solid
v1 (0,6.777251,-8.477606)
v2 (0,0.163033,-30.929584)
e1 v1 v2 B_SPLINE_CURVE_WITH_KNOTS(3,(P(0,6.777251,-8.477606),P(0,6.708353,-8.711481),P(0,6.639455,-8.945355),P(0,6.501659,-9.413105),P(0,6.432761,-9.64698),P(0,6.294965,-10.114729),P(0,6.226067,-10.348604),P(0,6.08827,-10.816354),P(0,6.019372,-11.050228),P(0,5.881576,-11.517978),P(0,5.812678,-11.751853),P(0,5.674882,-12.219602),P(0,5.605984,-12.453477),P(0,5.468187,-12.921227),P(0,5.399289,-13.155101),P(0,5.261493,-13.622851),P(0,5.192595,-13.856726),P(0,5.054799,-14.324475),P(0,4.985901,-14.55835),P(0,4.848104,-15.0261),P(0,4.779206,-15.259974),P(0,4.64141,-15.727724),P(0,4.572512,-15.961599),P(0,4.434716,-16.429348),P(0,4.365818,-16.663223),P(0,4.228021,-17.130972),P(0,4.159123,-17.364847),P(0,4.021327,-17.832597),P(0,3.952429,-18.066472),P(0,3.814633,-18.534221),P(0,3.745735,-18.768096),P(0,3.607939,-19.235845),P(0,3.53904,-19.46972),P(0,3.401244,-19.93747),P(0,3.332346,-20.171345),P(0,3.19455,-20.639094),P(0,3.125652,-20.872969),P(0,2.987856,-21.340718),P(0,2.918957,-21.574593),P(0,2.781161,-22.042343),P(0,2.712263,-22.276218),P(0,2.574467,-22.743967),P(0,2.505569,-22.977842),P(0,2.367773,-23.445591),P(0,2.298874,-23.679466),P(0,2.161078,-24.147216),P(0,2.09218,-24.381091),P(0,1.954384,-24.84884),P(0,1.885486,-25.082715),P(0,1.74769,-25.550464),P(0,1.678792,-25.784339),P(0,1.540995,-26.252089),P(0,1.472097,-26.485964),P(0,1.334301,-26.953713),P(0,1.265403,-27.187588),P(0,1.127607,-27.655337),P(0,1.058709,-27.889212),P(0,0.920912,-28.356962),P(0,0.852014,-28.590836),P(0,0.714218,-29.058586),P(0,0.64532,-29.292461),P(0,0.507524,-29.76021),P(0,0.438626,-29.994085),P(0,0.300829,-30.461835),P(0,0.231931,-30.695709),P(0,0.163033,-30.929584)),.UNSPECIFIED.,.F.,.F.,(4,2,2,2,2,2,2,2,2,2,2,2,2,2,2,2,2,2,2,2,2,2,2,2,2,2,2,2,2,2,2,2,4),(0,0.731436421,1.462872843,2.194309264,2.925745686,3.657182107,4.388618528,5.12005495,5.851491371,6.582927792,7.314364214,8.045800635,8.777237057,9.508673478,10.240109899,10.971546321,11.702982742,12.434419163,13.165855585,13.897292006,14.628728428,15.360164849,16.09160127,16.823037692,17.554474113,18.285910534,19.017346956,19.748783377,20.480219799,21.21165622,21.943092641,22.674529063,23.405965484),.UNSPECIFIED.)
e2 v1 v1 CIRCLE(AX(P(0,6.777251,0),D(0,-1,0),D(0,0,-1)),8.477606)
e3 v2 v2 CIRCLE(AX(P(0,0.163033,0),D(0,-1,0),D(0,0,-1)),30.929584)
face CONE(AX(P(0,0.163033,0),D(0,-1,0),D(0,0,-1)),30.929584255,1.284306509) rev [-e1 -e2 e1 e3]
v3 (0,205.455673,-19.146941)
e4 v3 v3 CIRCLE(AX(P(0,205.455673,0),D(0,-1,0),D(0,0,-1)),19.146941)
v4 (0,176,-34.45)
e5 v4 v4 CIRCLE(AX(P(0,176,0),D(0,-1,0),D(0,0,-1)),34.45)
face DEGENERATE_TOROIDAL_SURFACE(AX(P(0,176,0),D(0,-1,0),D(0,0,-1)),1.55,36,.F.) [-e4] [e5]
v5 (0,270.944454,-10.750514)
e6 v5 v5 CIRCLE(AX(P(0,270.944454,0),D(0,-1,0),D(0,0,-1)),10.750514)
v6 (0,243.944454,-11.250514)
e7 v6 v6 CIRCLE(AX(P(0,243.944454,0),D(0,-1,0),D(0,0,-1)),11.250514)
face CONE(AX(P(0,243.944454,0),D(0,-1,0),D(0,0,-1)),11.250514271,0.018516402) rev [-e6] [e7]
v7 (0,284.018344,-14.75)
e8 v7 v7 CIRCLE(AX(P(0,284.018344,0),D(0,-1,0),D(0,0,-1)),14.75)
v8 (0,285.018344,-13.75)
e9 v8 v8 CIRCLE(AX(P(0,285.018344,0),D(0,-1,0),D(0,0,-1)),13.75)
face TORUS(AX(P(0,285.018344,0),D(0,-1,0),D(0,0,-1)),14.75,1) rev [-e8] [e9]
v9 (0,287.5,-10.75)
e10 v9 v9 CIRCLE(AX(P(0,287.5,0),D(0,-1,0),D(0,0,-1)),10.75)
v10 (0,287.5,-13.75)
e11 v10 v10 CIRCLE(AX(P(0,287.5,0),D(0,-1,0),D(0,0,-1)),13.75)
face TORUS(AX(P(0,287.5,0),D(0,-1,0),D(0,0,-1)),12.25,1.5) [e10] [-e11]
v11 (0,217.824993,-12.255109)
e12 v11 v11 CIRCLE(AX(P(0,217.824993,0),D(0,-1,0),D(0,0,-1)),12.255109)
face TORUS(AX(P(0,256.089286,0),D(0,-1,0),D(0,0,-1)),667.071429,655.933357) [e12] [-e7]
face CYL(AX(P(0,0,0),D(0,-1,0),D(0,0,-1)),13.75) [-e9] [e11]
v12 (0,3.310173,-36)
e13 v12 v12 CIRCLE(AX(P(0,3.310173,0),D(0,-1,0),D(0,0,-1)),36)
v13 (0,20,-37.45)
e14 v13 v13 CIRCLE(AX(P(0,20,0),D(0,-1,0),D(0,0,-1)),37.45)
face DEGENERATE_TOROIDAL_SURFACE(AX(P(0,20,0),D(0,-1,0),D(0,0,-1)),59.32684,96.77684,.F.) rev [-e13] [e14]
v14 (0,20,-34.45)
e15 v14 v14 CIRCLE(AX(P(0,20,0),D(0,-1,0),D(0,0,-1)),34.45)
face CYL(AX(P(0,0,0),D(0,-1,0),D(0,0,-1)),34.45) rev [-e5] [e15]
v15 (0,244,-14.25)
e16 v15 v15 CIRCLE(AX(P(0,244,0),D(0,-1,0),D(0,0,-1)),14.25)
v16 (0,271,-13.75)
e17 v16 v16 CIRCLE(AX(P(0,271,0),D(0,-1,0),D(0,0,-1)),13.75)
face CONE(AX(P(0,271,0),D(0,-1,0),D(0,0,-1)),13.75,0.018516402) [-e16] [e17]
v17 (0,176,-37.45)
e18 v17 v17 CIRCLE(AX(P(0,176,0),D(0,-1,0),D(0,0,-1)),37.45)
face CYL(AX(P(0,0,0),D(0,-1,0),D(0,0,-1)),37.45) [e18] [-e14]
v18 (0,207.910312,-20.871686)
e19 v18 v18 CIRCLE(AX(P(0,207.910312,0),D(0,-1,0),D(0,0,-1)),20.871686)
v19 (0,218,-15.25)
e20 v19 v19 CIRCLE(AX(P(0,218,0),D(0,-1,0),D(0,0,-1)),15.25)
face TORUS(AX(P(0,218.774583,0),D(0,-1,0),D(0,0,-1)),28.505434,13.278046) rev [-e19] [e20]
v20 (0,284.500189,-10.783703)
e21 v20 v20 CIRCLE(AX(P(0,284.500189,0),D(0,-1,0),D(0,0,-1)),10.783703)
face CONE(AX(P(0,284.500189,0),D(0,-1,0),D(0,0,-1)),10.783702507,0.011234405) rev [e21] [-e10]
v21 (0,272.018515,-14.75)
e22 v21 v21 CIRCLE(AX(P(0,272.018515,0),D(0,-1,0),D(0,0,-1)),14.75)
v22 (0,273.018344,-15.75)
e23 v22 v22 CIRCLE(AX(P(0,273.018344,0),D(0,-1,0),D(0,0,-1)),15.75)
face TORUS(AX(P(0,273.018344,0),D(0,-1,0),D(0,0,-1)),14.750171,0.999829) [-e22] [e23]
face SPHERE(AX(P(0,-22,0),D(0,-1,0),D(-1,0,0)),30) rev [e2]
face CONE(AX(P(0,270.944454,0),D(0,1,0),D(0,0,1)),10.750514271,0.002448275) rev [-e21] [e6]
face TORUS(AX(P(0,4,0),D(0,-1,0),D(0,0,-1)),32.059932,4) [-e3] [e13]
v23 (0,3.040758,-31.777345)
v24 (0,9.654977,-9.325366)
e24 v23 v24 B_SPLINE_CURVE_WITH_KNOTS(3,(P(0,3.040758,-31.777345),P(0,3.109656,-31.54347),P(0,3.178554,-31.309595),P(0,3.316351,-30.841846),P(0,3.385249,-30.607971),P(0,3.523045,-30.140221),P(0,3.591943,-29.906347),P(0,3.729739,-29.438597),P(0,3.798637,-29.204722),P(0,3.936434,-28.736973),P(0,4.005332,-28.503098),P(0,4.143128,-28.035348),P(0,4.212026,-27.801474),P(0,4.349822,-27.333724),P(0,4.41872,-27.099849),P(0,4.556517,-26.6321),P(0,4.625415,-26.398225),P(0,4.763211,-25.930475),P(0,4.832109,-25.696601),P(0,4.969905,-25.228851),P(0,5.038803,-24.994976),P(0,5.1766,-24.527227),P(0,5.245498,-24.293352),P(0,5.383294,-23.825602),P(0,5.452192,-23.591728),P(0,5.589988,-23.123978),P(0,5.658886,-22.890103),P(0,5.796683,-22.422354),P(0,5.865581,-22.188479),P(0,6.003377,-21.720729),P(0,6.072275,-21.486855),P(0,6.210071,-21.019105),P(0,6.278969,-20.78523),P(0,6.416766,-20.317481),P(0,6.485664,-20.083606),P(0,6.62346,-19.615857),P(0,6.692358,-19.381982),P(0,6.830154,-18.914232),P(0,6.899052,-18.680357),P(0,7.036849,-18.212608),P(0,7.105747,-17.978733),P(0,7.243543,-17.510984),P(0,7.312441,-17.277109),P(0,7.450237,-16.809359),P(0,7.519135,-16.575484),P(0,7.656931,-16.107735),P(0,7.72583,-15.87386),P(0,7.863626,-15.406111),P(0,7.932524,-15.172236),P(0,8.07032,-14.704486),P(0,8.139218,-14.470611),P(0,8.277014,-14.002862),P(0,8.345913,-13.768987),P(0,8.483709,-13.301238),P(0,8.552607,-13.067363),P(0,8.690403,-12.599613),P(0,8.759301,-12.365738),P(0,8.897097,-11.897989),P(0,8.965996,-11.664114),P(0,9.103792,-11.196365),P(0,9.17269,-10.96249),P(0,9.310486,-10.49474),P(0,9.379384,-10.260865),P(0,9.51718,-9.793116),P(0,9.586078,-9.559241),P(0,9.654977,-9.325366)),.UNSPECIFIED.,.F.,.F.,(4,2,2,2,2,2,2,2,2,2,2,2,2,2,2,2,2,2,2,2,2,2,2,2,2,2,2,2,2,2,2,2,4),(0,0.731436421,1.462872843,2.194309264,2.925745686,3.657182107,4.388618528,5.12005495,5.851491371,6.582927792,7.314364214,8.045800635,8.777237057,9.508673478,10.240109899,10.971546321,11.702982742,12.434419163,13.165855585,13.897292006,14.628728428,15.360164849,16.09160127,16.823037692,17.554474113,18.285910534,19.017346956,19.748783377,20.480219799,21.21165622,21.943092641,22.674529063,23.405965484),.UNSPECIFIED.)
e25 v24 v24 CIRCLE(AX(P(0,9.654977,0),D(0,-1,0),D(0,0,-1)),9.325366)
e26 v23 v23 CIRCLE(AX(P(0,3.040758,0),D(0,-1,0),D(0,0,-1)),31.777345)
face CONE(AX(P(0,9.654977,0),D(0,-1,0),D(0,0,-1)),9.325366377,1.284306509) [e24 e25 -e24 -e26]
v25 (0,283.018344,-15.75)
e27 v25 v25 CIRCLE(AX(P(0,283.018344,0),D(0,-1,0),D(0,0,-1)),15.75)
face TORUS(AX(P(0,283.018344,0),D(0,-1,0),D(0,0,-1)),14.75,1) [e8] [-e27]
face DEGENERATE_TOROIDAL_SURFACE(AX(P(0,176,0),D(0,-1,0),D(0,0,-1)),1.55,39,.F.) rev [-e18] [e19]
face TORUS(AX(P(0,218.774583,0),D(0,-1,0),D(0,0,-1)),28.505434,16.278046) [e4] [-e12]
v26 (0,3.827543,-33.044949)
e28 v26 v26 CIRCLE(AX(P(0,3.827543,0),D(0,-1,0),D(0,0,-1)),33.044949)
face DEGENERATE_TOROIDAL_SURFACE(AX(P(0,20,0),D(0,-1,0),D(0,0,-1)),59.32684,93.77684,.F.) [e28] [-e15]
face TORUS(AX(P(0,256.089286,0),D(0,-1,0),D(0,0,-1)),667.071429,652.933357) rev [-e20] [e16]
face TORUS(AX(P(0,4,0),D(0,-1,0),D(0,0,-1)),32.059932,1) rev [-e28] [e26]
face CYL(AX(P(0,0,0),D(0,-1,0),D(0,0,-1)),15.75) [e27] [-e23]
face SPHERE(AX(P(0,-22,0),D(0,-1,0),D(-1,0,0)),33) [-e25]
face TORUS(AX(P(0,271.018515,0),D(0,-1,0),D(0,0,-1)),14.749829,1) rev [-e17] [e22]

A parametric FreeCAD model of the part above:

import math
import FreeCAD as App
import Part
import Sketcher
Q = App.Units.Quantity

doc = App.newDocument("Part")
params = doc.addObject("Spreadsheet::Sheet", "Params")
for row, (alias, value) in enumerate([
    ("sketch1_radius", "30 mm"),
    ("sketch1_radius2", "33 mm"),
    ("sketch1_radius3", "1 mm"),
    ("sketch1_radius4", "36 mm"),
    ("sketch1_radius5", "1.5 mm"),
    ("revolution_angle", "360 deg"),
], start=1):
    params.set(f"A{row}", alias)
    params.set(f"B{row}", "=" + value)
    params.setAlias(f"B{row}", alias)

body = doc.addObject("PartDesign::Body", "Body")

sketch1 = body.newObject("Sketcher::SketchObject", "Sketch")
sketch1.AttachmentSupport = (doc.getObject("XY_Plane"), [""])
sketch1.MapMode = "FlatFace"
sketch1.addGeometry(Part.LineSegment(App.Vector(-30.929584, 0.163033, 0), App.Vector(-8.477606, 6.777251, 0)), False)
sketch1.addGeometry(Part.ArcOfCircle(Part.Circle(App.Vector(0, -22, 0), App.Vector(0, 0, 1), 30), math.radians(90), math.radians(106.414657)), False)
sketch1.addGeometry(Part.LineSegment(App.Vector(0, 8, 0), App.Vector(0, 11, 0)), False)
sketch1.addGeometry(Part.ArcOfCircle(Part.Circle(App.Vector(0, -22, 0), App.Vector(0, 0, 1), 33), math.radians(90), math.radians(106.414657)), False)
sketch1.addGeometry(Part.LineSegment(App.Vector(-9.325366, 9.654977, 0), App.Vector(-31.777345, 3.040758, 0)), False)
sketch1.addGeometry(Part.ArcOfCircle(Part.Circle(App.Vector(-32.059932, 4, 0), App.Vector(0, 0, 1), 1), math.radians(-170.069305), math.radians(-73.585342)), False)
sketch1.addGeometry(Part.ArcOfCircle(Part.Circle(App.Vector(59.32684, 20, 0), App.Vector(0, 0, 1), 93.77684), math.radians(180), math.radians(189.930695)), False)
sketch1.addGeometry(Part.LineSegment(App.Vector(-34.45, 20, 0), App.Vector(-34.45, 176, 0)), False)
sketch1.addGeometry(Part.ArcOfCircle(Part.Circle(App.Vector(1.55, 176, 0), App.Vector(0, 0, 1), 36), math.radians(125.093681), math.radians(180)), False)
sketch1.addGeometry(Part.ArcOfCircle(Part.Circle(App.Vector(-28.505434, 218.774583, 0), App.Vector(0, 0, 1), 16.278046), math.radians(-54.906319), math.radians(-3.344285)), False)
sketch1.addGeometry(Part.ArcOfCircle(Part.Circle(App.Vector(-667.071429, 256.089286, 0), App.Vector(0, 0, 1), 655.933357), math.radians(-3.344285), math.radians(-1.060912)), False)
sketch1.addGeometry(Part.LineSegment(App.Vector(-11.250514, 243.944454, 0), App.Vector(-10.750514, 270.944454, 0)), False)
sketch1.addGeometry(Part.LineSegment(App.Vector(-10.750514, 270.944454, 0), App.Vector(-10.783703, 284.500189, 0)), False)
sketch1.addGeometry(Part.LineSegment(App.Vector(-10.783703, 284.500189, 0), App.Vector(-10.75, 287.5, 0)), False)
sketch1.addGeometry(Part.ArcOfCircle(Part.Circle(App.Vector(-12.25, 287.5, 0), App.Vector(0, 0, 1), 1.5), math.radians(0), math.radians(180)), False)
sketch1.addGeometry(Part.LineSegment(App.Vector(-13.75, 287.5, 0), App.Vector(-13.75, 285.018344, 0)), False)
sketch1.addGeometry(Part.ArcOfCircle(Part.Circle(App.Vector(-14.75, 285.018344, 0), App.Vector(0, 0, 1), 1), math.radians(-90), math.radians(0)), False)
sketch1.addGeometry(Part.ArcOfCircle(Part.Circle(App.Vector(-14.75, 283.018344, 0), App.Vector(0, 0, 1), 1), math.radians(90), math.radians(180)), False)
sketch1.addGeometry(Part.LineSegment(App.Vector(-15.75, 283.018344, 0), App.Vector(-15.75, 273.018344, 0)), False)
sketch1.addGeometry(Part.ArcOfCircle(Part.Circle(App.Vector(-14.750171, 273.018344, 0), App.Vector(0, 0, 1), 0.999829), math.radians(-180), math.radians(-89.990178)), False)
sketch1.addGeometry(Part.ArcOfCircle(Part.Circle(App.Vector(-14.749829, 271.018515, 0), App.Vector(0, 0, 1), 1), math.radians(-1.060912), math.radians(90.009822)), False)
sketch1.addGeometry(Part.LineSegment(App.Vector(-13.75, 271, 0), App.Vector(-14.25, 244, 0)), False)
sketch1.addGeometry(Part.ArcOfCircle(Part.Circle(App.Vector(-667.071431, 256.089286, 0), App.Vector(0, 0, 1), 652.933359), math.radians(-3.344285), math.radians(-1.060912)), False)
sketch1.addGeometry(Part.ArcOfCircle(Part.Circle(App.Vector(-28.505434, 218.774583, 0), App.Vector(0, 0, 1), 13.278046), math.radians(-54.906319), math.radians(-3.344285)), False)
sketch1.addGeometry(Part.ArcOfCircle(Part.Circle(App.Vector(1.55, 176, 0), App.Vector(0, 0, 1), 39), math.radians(125.093681), math.radians(180)), False)
sketch1.addGeometry(Part.LineSegment(App.Vector(-37.45, 176, 0), App.Vector(-37.45, 20, 0)), False)
sketch1.addGeometry(Part.ArcOfCircle(Part.Circle(App.Vector(59.32684, 20, 0), App.Vector(0, 0, 1), 96.77684), math.radians(-180), math.radians(-170.069305)), False)
sketch1.addGeometry(Part.ArcOfCircle(Part.Circle(App.Vector(-32.059932, 4, 0), App.Vector(0, 0, 1), 4), math.radians(-170.069305), math.radians(-73.585343)), False)
sketch1.addConstraint(Sketcher.Constraint("Tangent", 0, 2, 1, 2))
sketch1.addConstraint(Sketcher.Constraint("Coincident", 1, 1, 2, 1))
sketch1.addConstraint(Sketcher.Constraint("Coincident", 2, 2, 3, 1))
sketch1.addConstraint(Sketcher.Constraint("Tangent", 3, 2, 4, 1))
sketch1.addConstraint(Sketcher.Constraint("Tangent", 4, 2, 5, 2))
sketch1.addConstraint(Sketcher.Constraint("Tangent", 5, 1, 6, 2))
sketch1.addConstraint(Sketcher.Constraint("Tangent", 6, 1, 7, 1))
sketch1.addConstraint(Sketcher.Constraint("Tangent", 7, 2, 8, 2))
sketch1.addConstraint(Sketcher.Constraint("Tangent", 8, 1, 9, 1))
sketch1.addConstraint(Sketcher.Constraint("Tangent", 9, 2, 10, 1))
sketch1.addConstraint(Sketcher.Constraint("Tangent", 10, 2, 11, 1))
sketch1.addConstraint(Sketcher.Constraint("Coincident", 11, 2, 12, 1))
sketch1.addConstraint(Sketcher.Constraint("Coincident", 12, 2, 13, 1))
sketch1.addConstraint(Sketcher.Constraint("Coincident", 13, 2, 14, 1))
sketch1.addConstraint(Sketcher.Constraint("Tangent", 14, 2, 15, 1))
sketch1.addConstraint(Sketcher.Constraint("Tangent", 15, 2, 16, 2))
sketch1.addConstraint(Sketcher.Constraint("Tangent", 16, 1, 17, 1))
sketch1.addConstraint(Sketcher.Constraint("Tangent", 17, 2, 18, 1))
sketch1.addConstraint(Sketcher.Constraint("Tangent", 18, 2, 19, 1))
sketch1.addConstraint(Sketcher.Constraint("Tangent", 19, 2, 20, 2))
sketch1.addConstraint(Sketcher.Constraint("Tangent", 20, 1, 21, 1))
sketch1.addConstraint(Sketcher.Constraint("Tangent", 21, 2, 22, 2))
sketch1.addConstraint(Sketcher.Constraint("Tangent", 22, 1, 23, 2))
sketch1.addConstraint(Sketcher.Constraint("Tangent", 23, 1, 24, 1))
sketch1.addConstraint(Sketcher.Constraint("Tangent", 24, 2, 25, 1))
sketch1.addConstraint(Sketcher.Constraint("Tangent", 25, 2, 26, 1))
sketch1.addConstraint(Sketcher.Constraint("Tangent", 26, 2, 27, 1))
sketch1.addConstraint(Sketcher.Constraint("Tangent", 27, 2, 0, 1))
sketch1.addConstraint(Sketcher.Constraint("Vertical", 2))
sketch1.addConstraint(Sketcher.Constraint("Vertical", 7))
sketch1.addConstraint(Sketcher.Constraint("Vertical", 15))
sketch1.addConstraint(Sketcher.Constraint("Vertical", 18))
sketch1.addConstraint(Sketcher.Constraint("Vertical", 25))
sketch1.addConstraint(Sketcher.Constraint("Coincident", 3, 3, 1, 3))
sketch1.addConstraint(Sketcher.Constraint("Coincident", 22, 3, 10, 3))
sketch1.addConstraint(Sketcher.Constraint("Coincident", 23, 3, 9, 3))
sketch1.addConstraint(Sketcher.Constraint("Coincident", 24, 3, 8, 3))
sketch1.addConstraint(Sketcher.Constraint("Coincident", 26, 3, 6, 3))
sketch1.addConstraint(Sketcher.Constraint("Coincident", 27, 3, 5, 3))
sketch1.addConstraint(Sketcher.Constraint("Equal", 5, 16))
sketch1.addConstraint(Sketcher.Constraint("Equal", 16, 17))
sketch1.addConstraint(Sketcher.Constraint("Equal", 17, 20))
sketch1.addConstraint(Sketcher.Constraint("PointOnObject", 1, 3, -2))
sketch1.addConstraint(Sketcher.Constraint("PointOnObject", 1, 1, -2))
sketch1.addConstraint(Sketcher.Constraint("Parallel", 0, 4))
sketch1.addConstraint(Sketcher.Constraint("Parallel", 11, 21))
sketch1.addConstraint(Sketcher.Constraint("Horizontal", 14, 3, 13, 2))
sketch1.addConstraint(Sketcher.Constraint("Vertical", 16, 3, 17, 3))
sketch1.addConstraint(Sketcher.Constraint("Vertical", 16, 1, 19, 2))
sketch1.addConstraint(Sketcher.Constraint("Vertical", 15, 2, 20, 1))
sketch1.addConstraint(Sketcher.Constraint("Equal", 11, 21))
sketch1.addConstraint(Sketcher.Constraint("Radius", 1, Q("30 mm")))
sketch1.addConstraint(Sketcher.Constraint("Radius", 3, Q("33 mm")))
sketch1.addConstraint(Sketcher.Constraint("Radius", 5, Q("1 mm")))
sketch1.addConstraint(Sketcher.Constraint("Radius", 8, Q("36 mm")))
sketch1.addConstraint(Sketcher.Constraint("Radius", 14, Q("1.5 mm")))
sketch1.addConstraint(Sketcher.Constraint("DistanceY", 7, 1, 7, 2, Q("156 mm")))
sketch1.addConstraint(Sketcher.Constraint("DistanceY", 18, 2, 18, 1, Q("10 mm")))
sketch1.addConstraint(Sketcher.Constraint("Distance", 13, Q("3 mm")))
sketch1.addConstraint(Sketcher.Constraint("DistanceY", 1, 3, -1, 1, Q("22 mm")))
sketch1.addConstraint(Sketcher.Constraint("DistanceY", -1, 1, 5, 3, Q("4 mm")))
sketch1.addConstraint(Sketcher.Constraint("DistanceY", -1, 1, 6, 3, Q("20 mm")))
sketch1.addConstraint(Sketcher.Constraint("DistanceY", -1, 1, 20, 1, Q("271 mm")))
sketch1.addConstraint(Sketcher.Constraint("DistanceY", -1, 1, 21, 2, Q("244 mm")))
sketch1.addConstraint(Sketcher.Constraint("DistanceX", 26, 2, -1, 1, Q("36 mm")))
sketch1.addConstraint(Sketcher.Constraint("DistanceY", -1, 1, 14, 3, Q("287.5 mm")))
sketch1.addConstraint(Sketcher.Constraint("DistanceX", 14, 3, 8, 3, Q("13.8 mm")))
sketch1.addConstraint(Sketcher.Constraint("DistanceX", 21, 2, 20, 1, Q("0.5 mm")))
sketch1.addConstraint(Sketcher.Constraint("DistanceX", -1, 1, 8, 3, Q("1.55 mm")))
sketch1.addConstraint(Sketcher.Constraint("Radius", 22, Q("652.933359 mm")))
sketch1.addConstraint(Sketcher.Constraint("Radius", 9, Q("16.278046 mm")))
sketch1.addConstraint(Sketcher.Constraint("DistanceY", -1, 1, 12, 2, Q("284.500189 mm")))
sketch1.setExpression("Constraints[51]", "Params.sketch1_radius")
sketch1.setExpression("Constraints[52]", "Params.sketch1_radius2")
sketch1.setExpression("Constraints[53]", "Params.sketch1_radius3")
sketch1.setExpression("Constraints[54]", "Params.sketch1_radius4")
sketch1.setExpression("Constraints[55]", "Params.sketch1_radius5")
revolution = body.newObject("PartDesign::Revolution", "Revolution")
revolution.Profile = sketch1
revolution.ReferenceAxis = (sketch1, ["V_Axis"])
revolution.setExpression("Angle", "Params.revolution_angle")

doc.recompute()
